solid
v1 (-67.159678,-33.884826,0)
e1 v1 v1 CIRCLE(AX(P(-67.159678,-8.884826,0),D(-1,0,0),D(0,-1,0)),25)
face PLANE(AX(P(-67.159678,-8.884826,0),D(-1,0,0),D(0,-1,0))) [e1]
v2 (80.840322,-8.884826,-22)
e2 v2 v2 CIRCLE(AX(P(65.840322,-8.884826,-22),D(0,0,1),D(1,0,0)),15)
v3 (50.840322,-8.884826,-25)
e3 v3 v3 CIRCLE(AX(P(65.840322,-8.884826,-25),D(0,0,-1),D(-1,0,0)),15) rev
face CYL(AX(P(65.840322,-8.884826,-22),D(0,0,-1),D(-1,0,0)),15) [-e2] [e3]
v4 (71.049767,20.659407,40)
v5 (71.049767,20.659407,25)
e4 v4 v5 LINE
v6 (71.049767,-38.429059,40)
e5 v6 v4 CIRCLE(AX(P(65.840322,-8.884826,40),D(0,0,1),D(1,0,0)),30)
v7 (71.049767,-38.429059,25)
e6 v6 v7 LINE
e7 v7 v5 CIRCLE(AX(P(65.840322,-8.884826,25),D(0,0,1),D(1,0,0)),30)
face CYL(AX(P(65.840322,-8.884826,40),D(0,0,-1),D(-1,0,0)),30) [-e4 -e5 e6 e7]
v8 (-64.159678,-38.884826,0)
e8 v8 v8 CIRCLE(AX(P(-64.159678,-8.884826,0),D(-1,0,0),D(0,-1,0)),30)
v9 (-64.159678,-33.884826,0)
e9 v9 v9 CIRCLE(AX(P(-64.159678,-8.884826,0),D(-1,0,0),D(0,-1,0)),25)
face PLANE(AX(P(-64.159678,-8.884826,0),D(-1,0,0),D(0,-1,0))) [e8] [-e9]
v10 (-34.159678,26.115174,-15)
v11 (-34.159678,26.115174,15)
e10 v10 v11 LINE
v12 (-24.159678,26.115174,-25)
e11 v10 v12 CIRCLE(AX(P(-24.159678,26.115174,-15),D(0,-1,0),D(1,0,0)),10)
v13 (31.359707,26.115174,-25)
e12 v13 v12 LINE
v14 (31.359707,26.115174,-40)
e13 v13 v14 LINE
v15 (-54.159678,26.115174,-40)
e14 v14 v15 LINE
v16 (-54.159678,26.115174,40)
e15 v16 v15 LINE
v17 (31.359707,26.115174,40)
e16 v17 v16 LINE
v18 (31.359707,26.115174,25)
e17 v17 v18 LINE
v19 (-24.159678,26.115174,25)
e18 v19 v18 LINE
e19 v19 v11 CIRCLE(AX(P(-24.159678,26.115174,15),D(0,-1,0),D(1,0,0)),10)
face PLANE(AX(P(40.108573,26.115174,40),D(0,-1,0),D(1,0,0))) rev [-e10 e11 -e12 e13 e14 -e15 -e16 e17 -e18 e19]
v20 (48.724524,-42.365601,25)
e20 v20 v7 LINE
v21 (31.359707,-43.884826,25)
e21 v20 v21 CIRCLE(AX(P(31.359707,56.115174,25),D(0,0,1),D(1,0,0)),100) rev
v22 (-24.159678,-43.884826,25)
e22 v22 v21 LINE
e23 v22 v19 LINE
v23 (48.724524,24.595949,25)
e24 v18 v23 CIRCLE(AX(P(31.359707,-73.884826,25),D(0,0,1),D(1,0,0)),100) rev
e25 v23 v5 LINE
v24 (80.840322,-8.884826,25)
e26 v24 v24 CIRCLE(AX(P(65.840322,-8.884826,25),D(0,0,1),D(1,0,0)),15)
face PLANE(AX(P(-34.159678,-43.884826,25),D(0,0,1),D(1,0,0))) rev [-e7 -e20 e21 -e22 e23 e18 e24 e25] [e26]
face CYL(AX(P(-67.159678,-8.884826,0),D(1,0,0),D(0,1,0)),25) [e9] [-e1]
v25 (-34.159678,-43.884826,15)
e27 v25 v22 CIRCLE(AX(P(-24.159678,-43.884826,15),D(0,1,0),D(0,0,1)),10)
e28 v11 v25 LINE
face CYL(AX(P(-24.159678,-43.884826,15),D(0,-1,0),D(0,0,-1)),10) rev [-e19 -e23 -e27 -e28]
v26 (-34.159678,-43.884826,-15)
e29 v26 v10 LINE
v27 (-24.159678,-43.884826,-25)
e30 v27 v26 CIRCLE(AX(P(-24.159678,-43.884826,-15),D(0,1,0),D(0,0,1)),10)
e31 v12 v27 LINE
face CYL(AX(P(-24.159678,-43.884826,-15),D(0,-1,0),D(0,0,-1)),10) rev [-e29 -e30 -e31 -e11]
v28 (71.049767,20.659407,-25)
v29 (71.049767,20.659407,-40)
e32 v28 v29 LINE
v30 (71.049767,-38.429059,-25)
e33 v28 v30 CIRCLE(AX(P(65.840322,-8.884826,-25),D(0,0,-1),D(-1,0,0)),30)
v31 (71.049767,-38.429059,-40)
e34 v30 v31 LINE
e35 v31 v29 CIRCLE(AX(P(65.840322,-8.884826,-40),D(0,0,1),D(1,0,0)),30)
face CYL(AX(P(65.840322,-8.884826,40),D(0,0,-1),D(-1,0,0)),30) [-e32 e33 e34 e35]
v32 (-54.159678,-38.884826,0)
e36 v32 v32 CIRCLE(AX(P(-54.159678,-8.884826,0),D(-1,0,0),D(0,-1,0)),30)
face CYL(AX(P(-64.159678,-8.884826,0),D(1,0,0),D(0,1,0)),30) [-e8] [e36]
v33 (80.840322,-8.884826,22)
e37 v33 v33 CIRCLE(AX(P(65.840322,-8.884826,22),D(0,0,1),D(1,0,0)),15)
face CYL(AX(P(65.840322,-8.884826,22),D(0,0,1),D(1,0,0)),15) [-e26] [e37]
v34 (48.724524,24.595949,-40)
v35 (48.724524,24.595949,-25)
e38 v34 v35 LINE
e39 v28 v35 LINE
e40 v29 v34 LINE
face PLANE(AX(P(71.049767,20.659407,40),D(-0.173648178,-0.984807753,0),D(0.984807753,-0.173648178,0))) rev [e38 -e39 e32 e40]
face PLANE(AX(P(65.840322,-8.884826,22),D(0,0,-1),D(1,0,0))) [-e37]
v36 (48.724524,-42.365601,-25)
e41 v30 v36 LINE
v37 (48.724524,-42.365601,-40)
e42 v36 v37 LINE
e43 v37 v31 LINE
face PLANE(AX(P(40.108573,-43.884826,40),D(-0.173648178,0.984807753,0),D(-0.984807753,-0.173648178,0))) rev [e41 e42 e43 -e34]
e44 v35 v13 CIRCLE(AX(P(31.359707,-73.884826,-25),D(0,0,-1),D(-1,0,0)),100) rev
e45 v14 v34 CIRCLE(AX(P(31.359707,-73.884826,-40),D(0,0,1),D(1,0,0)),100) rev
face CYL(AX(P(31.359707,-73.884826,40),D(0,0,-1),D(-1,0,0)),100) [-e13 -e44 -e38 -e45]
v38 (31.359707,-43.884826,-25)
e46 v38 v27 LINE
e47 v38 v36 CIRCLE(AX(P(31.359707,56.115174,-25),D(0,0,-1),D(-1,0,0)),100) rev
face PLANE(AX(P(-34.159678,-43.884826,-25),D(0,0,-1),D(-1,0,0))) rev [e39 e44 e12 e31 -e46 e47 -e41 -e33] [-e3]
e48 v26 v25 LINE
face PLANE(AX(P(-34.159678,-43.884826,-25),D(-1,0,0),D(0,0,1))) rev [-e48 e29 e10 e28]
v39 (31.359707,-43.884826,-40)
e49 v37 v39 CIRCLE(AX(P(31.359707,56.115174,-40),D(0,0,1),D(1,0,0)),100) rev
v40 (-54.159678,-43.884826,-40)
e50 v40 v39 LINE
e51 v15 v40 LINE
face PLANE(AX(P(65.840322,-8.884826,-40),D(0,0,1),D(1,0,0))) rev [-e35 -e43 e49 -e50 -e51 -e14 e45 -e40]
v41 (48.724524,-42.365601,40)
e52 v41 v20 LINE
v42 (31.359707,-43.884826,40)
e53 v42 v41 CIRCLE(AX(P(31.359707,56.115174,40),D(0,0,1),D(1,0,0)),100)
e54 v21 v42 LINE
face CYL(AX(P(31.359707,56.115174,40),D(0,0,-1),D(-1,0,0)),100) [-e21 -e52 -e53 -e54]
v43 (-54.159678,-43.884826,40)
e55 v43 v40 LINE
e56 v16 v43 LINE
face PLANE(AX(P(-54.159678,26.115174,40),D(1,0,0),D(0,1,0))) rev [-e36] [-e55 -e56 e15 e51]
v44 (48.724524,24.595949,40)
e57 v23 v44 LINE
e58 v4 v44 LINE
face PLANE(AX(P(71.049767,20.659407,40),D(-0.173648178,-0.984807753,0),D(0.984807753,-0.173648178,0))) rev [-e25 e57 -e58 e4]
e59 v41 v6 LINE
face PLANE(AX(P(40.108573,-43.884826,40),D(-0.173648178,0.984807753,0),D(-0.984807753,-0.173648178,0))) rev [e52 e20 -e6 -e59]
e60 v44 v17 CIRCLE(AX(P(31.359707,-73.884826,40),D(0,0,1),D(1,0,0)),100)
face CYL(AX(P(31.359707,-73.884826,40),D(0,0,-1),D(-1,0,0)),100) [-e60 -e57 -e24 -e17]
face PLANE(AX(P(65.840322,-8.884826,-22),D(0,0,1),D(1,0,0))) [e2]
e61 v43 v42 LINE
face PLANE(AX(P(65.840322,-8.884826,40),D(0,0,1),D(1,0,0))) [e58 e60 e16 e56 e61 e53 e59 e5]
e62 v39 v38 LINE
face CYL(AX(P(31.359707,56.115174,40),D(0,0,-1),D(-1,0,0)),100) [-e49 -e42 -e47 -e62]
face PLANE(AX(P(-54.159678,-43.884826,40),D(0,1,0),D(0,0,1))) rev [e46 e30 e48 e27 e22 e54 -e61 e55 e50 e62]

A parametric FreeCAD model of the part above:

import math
import FreeCAD as App
import Part
import Sketcher
from FreeCAD import Vector
Q = App.Units.Quantity


def edges_at(feature, points):
    """Names of the edges that pass closest to the given points."""
    edges = feature.Shape.Edges
    near = lambda p: min(range(len(edges)), key=lambda i: edges[i].distToShape(Part.Vertex(*p))[0])
    return sorted({f"Edge{near(p) + 1}" for p in points})


def add_polygon(sketch, points):
    """Adds a closed chain of lines whose ends are joined by coincident constraints."""
    first, n = sketch.GeometryCount, len(points)
    for a, b in zip(points, points[1:] + points[:1]):
        sketch.addGeometry(Part.LineSegment(App.Vector(*a, 0), App.Vector(*b, 0)), False)
    for i in range(n):
        sketch.addConstraint(Sketcher.Constraint("Coincident", first + i, 2, first + (i + 1) % n, 1))

doc = App.newDocument("Part")
body = doc.addObject("PartDesign::Body", "Body")

sketch1 = body.newObject("Sketcher::SketchObject", "Sketch")
sketch1.AttachmentSupport = (doc.getObject("XY_Plane"), [""])
sketch1.MapMode = "FlatFace"
sketch1.addGeometry([
    Part.LineSegment(Vector(-54, -44, 0), Vector(40, -44, 0)),
    Part.LineSegment(Vector(40, -44, 0), Vector(71, -38, 0)),
    Part.ArcOfCircle(Part.Circle(Vector(66, -9, 0), Vector(0, 0, 1), 30), math.radians(-80), math.radians(80)),
    Part.LineSegment(Vector(71, 21, 0), Vector(40, 26, 0)),
    Part.LineSegment(Vector(40, 26, 0), Vector(-54, 26, 0)),
    Part.LineSegment(Vector(-54, 26, 0), Vector(-54, -44, 0)),
], False)
sketch1.addConstraint([
    Sketcher.Constraint("Coincident", 0, 2, 1, 1),
    Sketcher.Constraint("Tangent", 1, 2, 2, 1),
    Sketcher.Constraint("Tangent", 2, 2, 3, 1),
    Sketcher.Constraint("Coincident", 3, 2, 4, 1),
    Sketcher.Constraint("Coincident", 4, 2, 5, 1),
    Sketcher.Constraint("Coincident", 5, 2, 0, 1),
    Sketcher.Constraint("Horizontal", 0),
    Sketcher.Constraint("Horizontal", 4),
    Sketcher.Constraint("Vertical", 5),
    Sketcher.Constraint("Vertical", 1, 2, 2, 2),
    Sketcher.Constraint("Vertical", 0, 2, 3, 2),
    Sketcher.Constraint("Radius", 2, 30.0),
    Sketcher.Constraint("DistanceY", 5, 2, 5, 1, 70.0),
    Sketcher.Constraint("Angle", 1, Q("10 deg")),
    Sketcher.Constraint("DistanceX", 4, 2, 2, 3, 120.0),
    Sketcher.Constraint("DistanceY", 1, 2, -1, 1, 38.429059),
    Sketcher.Constraint("DistanceX", -1, 1, 2, 3, 65.840322),
])
pad1 = body.newObject("PartDesign::Pad", "Pad")
pad1.Profile = sketch1
pad1.Length = 80
pad1.Midplane = True

sketch2 = body.newObject("Sketcher::SketchObject", "Sketch001")
sketch2.AttachmentSupport = (doc.getObject("XZ_Plane"), [""])
sketch2.MapMode = "FlatFace"
add_polygon(sketch2, [(-34, -25), (-34, 25), (121, 25), (121, -25)])
sketch2.addConstraint([
    Sketcher.Constraint("Vertical", 0),
    Sketcher.Constraint("Horizontal", 1),
    Sketcher.Constraint("Vertical", 2),
    Sketcher.Constraint("Horizontal", 3),
    Sketcher.Constraint("DistanceY", 0, 1, 0, 2, 50.0),
    Sketcher.Constraint("DistanceY", -1, 1, 0, 2, 25.0),
    Sketcher.Constraint("DistanceX", 1, 1, 1, 2, 154.782746),
    Sketcher.Constraint("DistanceX", -1, 1, 1, 2, 120.623068),
])
pocket1 = body.newObject("PartDesign::Pocket", "Pocket")
pocket1.Profile = sketch2
pocket1.Type = "ThroughAll"
pocket1.Reversed = True

sketch3 = body.newObject("Sketcher::SketchObject", "Sketch002")
sketch3.AttachmentSupport = (doc.getObject("XZ_Plane"), [""])
sketch3.MapMode = "FlatFace"
add_polygon(sketch3, [(-34, -25), (-34, 25), (121, 25), (121, -25)])
sketch3.addConstraint([
    Sketcher.Constraint("Vertical", 0),
    Sketcher.Constraint("Horizontal", 1),
    Sketcher.Constraint("Vertical", 2),
    Sketcher.Constraint("Horizontal", 3),
    Sketcher.Constraint("DistanceY", 0, 1, 0, 2, 50.0),
    Sketcher.Constraint("DistanceY", -1, 1, 0, 2, 25.0),
    Sketcher.Constraint("DistanceX", 1, 1, 1, 2, 154.782746),
    Sketcher.Constraint("DistanceX", -1, 1, 1, 2, 120.623068),
])
pocket2 = body.newObject("PartDesign::Pocket", "Pocket001")
pocket2.Profile = sketch3
pocket2.Type = "ThroughAll"

sketch4 = body.newObject("Sketcher::SketchObject", "Sketch003")
sketch4.AttachmentSupport = (doc.getObject("XY_Plane"), [""])
sketch4.MapMode = "FlatFace"
sketch4.AttachmentOffset = App.Placement(Vector(0, 0, -25), App.Rotation())
sketch4.addGeometry(Part.Circle(Vector(66, -9, 0), Vector(0, 0, 1), 15), False)
sketch4.addConstraint([
    Sketcher.Constraint("Diameter", 0, 30.0),
    Sketcher.Constraint("DistanceX", -1, 1, 0, 3, 65.840322),
    Sketcher.Constraint("DistanceY", 0, 3, -1, 1, 8.884826),
])
pad2 = body.newObject("PartDesign::Pad", "Pad001")
pad2.Profile = sketch4
pad2.Length = 3
doc.recompute()

mirrored = body.newObject("PartDesign::Mirrored", "Mirrored")
mirrored.Originals = [pad2]
mirrored.MirrorPlane = (doc.getObject("XY_Plane"), [""])
body.Tip = mirrored

sketch5 = body.newObject("Sketcher::SketchObject", "Sketch004")
sketch5.AttachmentSupport = (doc.getObject("YZ_Plane"), [""])
sketch5.MapMode = "FlatFace"
sketch5.AttachmentOffset = App.Placement(Vector(0, 0, -54.159678), App.Rotation())
sketch5.addGeometry(Part.Circle(Vector(-9, 0, 0), Vector(0, 0, 1), 30), False)
sketch5.addConstraint([
    Sketcher.Constraint("PointOnObject", 0, 3, -1),
    Sketcher.Constraint("Diameter", 0, 60.0),
    Sketcher.Constraint("DistanceX", 0, 3, -1, 1, 8.884826),
])
pad3 = body.newObject("PartDesign::Pad", "Pad002")
pad3.Profile = sketch5
pad3.Length = 10
pad3.Reversed = True

sketch6 = body.newObject("Sketcher::SketchObject", "Sketch005")
sketch6.AttachmentSupport = (doc.getObject("YZ_Plane"), [""])
sketch6.MapMode = "FlatFace"
sketch6.AttachmentOffset = App.Placement(Vector(0, 0, -64.159678), App.Rotation())
sketch6.addGeometry(Part.Circle(Vector(-9, 0, 0), Vector(0, 0, 1), 25), False)
sketch6.addConstraint([
    Sketcher.Constraint("PointOnObject", 0, 3, -1),
    Sketcher.Constraint("Diameter", 0, 50.0),
    Sketcher.Constraint("DistanceX", 0, 3, -1, 1, 8.884826),
])
pad4 = body.newObject("PartDesign::Pad", "Pad003")
pad4.Profile = sketch6
pad4.Length = 3
pad4.Reversed = True
doc.recompute()

fillet = body.newObject("PartDesign::Fillet", "Fillet")
fillet.Base = (pad4, edges_at(pad4, [(40.109, 26.115, 32.5), (40.109, 26.115, -32.5)]))
fillet.Radius = 100
doc.recompute()

fillet2 = body.newObject("PartDesign::Fillet", "Fillet001")
fillet2.Base = (fillet, edges_at(fillet, [(40.109, -43.885, 32.5), (40.109, -43.885, -32.5)]))
fillet2.Radius = 100
doc.recompute()

fillet3 = body.newObject("PartDesign::Fillet", "Fillet002")
fillet3.Base = (fillet2, edges_at(fillet2, [(-34.16, -8.885, -25), (-34.16, -8.885, 25)]))
fillet3.Radius = 10

doc.recompute()
